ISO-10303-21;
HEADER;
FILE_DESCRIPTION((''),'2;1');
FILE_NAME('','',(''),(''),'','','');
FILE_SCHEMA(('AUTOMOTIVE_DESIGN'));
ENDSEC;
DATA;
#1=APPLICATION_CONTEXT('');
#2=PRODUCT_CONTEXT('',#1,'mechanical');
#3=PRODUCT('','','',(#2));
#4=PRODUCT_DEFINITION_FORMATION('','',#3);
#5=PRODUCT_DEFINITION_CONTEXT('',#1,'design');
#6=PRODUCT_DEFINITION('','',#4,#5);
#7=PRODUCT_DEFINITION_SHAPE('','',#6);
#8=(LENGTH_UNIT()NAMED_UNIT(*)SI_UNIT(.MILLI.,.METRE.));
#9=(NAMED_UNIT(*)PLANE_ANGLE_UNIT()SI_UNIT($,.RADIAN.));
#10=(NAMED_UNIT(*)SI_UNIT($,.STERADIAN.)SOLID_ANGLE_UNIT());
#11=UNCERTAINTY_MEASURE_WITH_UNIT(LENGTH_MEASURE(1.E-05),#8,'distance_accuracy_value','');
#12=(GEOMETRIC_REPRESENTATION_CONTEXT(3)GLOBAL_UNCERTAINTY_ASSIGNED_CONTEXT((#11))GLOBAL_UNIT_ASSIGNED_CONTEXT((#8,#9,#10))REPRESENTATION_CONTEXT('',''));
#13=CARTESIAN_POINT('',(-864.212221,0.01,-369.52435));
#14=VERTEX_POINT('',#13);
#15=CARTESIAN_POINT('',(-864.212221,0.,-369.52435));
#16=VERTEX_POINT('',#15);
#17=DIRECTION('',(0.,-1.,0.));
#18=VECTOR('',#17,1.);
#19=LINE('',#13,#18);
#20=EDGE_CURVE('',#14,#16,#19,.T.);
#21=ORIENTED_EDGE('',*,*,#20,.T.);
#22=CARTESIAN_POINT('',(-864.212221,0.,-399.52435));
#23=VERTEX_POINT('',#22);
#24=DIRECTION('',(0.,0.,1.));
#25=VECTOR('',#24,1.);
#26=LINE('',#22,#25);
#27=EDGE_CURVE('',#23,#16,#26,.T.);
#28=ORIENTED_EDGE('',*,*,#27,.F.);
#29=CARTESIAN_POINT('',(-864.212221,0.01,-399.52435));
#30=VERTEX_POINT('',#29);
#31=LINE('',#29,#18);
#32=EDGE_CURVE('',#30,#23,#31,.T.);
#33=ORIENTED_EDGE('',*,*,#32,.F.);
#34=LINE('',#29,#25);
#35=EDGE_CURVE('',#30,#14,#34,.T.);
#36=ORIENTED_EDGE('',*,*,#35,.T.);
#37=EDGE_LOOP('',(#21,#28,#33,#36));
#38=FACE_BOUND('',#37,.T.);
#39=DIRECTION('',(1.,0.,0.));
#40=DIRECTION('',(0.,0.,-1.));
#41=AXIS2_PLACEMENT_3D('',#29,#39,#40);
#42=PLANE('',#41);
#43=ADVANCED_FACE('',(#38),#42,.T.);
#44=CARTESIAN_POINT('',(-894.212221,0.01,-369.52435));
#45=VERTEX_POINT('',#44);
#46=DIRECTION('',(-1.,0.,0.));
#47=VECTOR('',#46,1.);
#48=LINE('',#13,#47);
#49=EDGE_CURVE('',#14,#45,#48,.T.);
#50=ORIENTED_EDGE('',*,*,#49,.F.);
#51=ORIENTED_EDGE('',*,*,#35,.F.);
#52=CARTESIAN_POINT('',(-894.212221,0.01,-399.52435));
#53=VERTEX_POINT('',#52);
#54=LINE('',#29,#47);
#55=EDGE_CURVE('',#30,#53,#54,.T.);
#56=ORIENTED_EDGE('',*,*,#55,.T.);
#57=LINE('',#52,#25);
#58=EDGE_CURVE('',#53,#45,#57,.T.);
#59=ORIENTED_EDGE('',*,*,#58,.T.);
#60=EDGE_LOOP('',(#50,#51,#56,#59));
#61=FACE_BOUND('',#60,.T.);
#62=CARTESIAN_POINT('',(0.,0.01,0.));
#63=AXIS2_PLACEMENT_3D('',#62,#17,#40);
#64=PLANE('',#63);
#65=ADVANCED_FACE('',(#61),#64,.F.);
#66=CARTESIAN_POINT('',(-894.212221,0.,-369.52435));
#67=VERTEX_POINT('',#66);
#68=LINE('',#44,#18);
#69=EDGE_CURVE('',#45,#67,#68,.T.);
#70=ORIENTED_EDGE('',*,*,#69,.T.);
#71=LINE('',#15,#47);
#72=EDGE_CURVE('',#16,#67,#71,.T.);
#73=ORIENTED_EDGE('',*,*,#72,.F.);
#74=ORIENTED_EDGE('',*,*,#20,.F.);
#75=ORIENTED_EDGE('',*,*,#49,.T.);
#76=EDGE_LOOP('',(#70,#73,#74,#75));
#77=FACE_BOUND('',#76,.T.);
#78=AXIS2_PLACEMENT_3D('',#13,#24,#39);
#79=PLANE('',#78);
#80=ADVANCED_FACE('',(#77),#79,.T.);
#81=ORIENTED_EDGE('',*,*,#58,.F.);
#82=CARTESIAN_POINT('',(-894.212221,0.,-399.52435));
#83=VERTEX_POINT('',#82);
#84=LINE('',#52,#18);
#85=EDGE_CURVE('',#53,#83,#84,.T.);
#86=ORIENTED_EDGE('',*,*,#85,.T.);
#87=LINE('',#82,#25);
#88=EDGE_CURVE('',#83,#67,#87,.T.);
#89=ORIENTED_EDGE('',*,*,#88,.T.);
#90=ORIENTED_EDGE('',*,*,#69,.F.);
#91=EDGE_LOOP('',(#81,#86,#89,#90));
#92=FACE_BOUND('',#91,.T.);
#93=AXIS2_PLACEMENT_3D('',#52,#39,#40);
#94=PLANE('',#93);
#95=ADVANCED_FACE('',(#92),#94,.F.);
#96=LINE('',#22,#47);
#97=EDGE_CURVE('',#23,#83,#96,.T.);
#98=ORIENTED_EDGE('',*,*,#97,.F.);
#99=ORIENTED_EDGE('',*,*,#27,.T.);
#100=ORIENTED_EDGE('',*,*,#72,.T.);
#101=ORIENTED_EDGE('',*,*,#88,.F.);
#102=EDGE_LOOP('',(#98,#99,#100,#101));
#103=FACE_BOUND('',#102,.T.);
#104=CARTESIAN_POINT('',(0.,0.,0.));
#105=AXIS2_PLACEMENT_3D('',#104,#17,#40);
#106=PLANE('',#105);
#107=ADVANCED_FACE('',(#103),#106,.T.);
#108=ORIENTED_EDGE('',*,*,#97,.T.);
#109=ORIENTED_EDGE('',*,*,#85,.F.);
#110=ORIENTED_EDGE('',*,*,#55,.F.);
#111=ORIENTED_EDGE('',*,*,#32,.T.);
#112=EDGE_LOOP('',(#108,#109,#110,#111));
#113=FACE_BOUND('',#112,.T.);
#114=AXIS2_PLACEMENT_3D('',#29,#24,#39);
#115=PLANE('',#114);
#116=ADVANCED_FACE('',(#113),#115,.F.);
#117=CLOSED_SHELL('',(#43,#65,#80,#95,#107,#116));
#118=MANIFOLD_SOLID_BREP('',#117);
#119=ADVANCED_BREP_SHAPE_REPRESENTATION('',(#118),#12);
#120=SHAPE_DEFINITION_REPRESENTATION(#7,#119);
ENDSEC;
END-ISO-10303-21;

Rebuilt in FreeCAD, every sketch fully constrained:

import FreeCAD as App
import Part
import Sketcher

V = App.Vector
Q = App.Units.Quantity

doc = App.newDocument("Part")
body = doc.addObject("PartDesign::Body", "Body")

sketch1 = doc.addObject("Sketcher::SketchObject", "Sketch")
body.addObject(sketch1)
sketch1.AttachmentSupport = (doc.XZ_Plane, [""])
sketch1.MapMode = "FlatFace"
sketch1.addGeometry([
    Part.LineSegment(V(-894.212221, -399.52435, 0), V(-894.212221, -369.52435, 0)),
    Part.LineSegment(V(-894.212221, -369.52435, 0), V(-864.212221, -369.52435, 0)),
    Part.LineSegment(V(-864.212221, -369.52435, 0), V(-864.212221, -399.52435, 0)),
    Part.LineSegment(V(-864.212221, -399.52435, 0), V(-894.212221, -399.52435, 0)),
], False)
sketch1.addConstraint([
    Sketcher.Constraint("Coincident", 0, 2, 1, 1),
    Sketcher.Constraint("Coincident", 1, 2, 2, 1),
    Sketcher.Constraint("Coincident", 2, 2, 3, 1),
    Sketcher.Constraint("Coincident", 3, 2, 0, 1),
    Sketcher.Constraint("Vertical", 0),
    Sketcher.Constraint("Horizontal", 1),
    Sketcher.Constraint("Vertical", 2),
    Sketcher.Constraint("Horizontal", 3),
    Sketcher.Constraint("Equal", 3, 0),
    Sketcher.Constraint("DistanceX", 1, 1, 1, 2, Q("30 mm")),
    Sketcher.Constraint("DistanceX", 0, 2, -1, 1, Q("894.212221 mm")),
    Sketcher.Constraint("DistanceY", 0, 2, -1, 1, Q("369.52435 mm")),
])
pad1 = doc.addObject("PartDesign::Pad", "Pad")
body.addObject(pad1)
pad1.Profile = sketch1
pad1.Length = 0.01
pad1.Reversed = True

doc.recompute()
